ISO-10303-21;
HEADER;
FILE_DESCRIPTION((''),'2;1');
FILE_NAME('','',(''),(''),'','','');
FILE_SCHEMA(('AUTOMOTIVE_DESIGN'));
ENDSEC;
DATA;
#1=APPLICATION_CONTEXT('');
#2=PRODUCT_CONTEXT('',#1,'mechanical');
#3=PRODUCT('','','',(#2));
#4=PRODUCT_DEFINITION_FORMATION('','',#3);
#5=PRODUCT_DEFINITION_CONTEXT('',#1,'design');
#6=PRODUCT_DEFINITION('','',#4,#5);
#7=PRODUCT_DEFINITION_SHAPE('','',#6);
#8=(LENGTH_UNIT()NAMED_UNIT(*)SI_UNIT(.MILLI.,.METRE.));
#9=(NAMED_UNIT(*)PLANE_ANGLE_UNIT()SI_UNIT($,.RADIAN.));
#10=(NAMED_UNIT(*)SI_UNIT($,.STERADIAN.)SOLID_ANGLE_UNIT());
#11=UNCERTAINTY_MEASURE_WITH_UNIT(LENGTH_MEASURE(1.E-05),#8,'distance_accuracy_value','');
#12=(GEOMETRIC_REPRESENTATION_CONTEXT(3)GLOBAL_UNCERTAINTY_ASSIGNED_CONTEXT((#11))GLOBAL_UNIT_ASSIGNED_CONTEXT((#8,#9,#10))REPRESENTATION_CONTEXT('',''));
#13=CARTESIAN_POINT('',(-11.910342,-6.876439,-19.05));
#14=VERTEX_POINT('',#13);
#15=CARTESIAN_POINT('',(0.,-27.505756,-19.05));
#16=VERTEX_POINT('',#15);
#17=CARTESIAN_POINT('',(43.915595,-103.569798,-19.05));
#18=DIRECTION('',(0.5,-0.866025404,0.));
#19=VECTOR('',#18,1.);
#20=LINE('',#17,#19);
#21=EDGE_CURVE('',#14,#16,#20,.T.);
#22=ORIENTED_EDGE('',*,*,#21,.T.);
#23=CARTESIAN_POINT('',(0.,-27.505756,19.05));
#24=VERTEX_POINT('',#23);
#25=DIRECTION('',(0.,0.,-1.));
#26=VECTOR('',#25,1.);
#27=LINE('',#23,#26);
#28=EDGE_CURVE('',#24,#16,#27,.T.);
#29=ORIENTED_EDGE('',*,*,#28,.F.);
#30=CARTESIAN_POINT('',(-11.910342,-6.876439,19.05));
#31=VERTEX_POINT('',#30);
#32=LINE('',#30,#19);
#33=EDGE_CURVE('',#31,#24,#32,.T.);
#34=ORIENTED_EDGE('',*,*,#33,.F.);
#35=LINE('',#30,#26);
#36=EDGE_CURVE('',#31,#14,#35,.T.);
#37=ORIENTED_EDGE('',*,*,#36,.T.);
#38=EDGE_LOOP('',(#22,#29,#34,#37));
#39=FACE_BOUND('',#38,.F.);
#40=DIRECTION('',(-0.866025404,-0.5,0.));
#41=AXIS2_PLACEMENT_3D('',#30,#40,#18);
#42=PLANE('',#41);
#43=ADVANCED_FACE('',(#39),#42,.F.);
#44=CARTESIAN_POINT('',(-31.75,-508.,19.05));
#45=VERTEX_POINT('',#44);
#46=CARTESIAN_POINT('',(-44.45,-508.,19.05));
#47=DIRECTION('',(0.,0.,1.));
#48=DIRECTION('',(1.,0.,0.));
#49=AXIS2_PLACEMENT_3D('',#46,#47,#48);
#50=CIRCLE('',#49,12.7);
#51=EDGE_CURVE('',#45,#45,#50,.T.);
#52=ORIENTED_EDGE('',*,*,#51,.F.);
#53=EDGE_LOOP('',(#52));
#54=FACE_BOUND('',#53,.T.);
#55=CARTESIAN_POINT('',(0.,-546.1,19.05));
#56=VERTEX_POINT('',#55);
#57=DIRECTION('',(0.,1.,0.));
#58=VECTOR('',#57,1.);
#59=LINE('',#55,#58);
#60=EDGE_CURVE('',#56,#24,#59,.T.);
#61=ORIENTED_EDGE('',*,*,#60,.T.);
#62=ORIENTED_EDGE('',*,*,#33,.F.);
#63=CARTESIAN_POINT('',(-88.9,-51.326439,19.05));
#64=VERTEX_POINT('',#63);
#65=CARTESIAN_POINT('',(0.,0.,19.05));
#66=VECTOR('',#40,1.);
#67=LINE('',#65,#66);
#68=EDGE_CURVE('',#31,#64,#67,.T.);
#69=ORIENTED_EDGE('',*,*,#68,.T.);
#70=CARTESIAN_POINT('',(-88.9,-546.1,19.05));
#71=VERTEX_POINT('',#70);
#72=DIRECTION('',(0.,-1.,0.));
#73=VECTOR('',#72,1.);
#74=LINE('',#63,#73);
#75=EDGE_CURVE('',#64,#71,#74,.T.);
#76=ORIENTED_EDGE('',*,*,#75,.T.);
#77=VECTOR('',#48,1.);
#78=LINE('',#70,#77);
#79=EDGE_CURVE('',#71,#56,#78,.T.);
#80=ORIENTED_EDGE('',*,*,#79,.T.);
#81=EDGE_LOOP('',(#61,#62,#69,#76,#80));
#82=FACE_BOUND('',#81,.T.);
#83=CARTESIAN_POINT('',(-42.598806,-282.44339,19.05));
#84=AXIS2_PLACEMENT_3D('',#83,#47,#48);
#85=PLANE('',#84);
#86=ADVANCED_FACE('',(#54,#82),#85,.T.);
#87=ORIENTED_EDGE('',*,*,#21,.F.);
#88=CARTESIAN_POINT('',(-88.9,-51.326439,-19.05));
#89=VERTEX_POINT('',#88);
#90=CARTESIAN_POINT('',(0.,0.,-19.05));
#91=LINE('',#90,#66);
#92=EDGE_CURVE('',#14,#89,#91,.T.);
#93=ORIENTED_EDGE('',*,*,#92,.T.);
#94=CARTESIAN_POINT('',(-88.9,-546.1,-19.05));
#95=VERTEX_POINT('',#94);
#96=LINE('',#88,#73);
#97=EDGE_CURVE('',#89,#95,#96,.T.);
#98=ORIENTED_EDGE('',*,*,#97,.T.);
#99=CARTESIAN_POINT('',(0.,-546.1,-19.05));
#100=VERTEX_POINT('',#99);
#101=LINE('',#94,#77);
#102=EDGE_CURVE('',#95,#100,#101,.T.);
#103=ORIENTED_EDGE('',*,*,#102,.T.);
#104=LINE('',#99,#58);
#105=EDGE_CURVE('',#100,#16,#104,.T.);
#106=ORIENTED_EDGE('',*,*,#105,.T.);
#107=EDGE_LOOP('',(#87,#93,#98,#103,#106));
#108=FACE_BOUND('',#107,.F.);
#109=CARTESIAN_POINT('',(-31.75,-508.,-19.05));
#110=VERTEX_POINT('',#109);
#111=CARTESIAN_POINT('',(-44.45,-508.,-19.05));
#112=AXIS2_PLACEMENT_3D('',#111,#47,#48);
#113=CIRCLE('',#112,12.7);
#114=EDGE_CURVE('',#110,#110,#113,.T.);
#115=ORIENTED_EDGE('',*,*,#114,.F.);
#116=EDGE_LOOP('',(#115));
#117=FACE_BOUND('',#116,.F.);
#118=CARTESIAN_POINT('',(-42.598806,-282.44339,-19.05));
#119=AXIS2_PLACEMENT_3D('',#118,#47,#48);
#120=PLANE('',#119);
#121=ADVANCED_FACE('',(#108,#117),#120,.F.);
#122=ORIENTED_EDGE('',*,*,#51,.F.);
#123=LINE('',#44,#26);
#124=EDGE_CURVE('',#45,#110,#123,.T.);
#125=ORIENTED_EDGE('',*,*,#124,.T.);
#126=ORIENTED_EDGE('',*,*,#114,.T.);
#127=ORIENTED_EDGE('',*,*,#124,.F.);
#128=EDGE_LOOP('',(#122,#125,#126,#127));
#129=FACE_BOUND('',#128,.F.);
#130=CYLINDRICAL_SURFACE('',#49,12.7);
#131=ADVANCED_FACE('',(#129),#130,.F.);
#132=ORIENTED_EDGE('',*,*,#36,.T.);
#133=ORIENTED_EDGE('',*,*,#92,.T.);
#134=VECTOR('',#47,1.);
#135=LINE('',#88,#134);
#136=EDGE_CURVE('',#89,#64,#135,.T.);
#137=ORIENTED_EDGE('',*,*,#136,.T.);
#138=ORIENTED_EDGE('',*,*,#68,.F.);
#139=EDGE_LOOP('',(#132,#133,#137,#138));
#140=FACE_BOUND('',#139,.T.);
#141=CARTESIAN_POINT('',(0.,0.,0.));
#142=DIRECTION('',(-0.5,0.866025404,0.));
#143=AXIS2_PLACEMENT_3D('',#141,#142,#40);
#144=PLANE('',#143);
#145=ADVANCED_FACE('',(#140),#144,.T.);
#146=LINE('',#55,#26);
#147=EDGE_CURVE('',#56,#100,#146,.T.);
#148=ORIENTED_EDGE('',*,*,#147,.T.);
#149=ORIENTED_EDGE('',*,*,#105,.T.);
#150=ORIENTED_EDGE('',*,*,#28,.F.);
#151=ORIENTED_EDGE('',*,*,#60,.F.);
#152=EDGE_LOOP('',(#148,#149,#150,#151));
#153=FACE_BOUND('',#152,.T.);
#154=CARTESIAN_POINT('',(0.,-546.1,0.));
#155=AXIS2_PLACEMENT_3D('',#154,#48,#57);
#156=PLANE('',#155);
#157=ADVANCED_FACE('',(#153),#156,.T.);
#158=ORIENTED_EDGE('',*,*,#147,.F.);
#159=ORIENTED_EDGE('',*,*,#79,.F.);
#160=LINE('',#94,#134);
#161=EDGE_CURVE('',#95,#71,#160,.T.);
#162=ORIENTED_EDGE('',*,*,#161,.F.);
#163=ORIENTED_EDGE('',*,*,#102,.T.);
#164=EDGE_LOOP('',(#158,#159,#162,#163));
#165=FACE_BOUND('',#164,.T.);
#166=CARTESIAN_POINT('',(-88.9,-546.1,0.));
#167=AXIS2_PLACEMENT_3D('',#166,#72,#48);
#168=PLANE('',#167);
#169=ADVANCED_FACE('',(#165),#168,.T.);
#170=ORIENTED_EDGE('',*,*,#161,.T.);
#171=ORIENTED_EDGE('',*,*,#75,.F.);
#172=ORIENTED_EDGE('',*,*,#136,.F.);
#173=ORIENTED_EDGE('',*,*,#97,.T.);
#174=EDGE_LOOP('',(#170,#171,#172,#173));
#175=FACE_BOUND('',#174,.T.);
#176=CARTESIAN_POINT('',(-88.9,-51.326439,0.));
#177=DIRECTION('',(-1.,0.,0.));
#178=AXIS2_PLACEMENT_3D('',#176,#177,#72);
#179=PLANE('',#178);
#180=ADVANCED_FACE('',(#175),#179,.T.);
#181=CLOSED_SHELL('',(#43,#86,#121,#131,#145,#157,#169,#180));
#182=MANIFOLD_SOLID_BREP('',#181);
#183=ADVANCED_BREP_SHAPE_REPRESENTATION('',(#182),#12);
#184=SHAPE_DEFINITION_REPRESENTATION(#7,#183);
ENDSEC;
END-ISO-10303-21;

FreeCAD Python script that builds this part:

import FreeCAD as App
import Part
import Sketcher
Q = App.Units.Quantity

doc = App.newDocument("Part")
params = doc.addObject("Spreadsheet::Sheet", "Params")
for row, (alias, value) in enumerate([
    ("sketch1_width", "3.5 in"),
    ("sketch1_height", "21.5 in"),
    ("pad1_length", "1.5 in"),
    ("sketch3_diameter", "1 in"),
], start=1):
    params.set(f"A{row}", alias)
    params.set(f"B{row}", "=" + value)
    params.setAlias(f"B{row}", alias)

body = doc.addObject("PartDesign::Body", "Body")

# Sketch on XY plane
sketch1 = body.newObject("Sketcher::SketchObject", "Sketch")
sketch1.AttachmentSupport = (doc.getObject("XY_Plane"), [""])
sketch1.MapMode = "FlatFace"
sketch1.addGeometry(Part.LineSegment(App.Vector(0, 0, 0), App.Vector(-89, -51, 0)), False)
sketch1.addGeometry(Part.LineSegment(App.Vector(-89, -51, 0), App.Vector(-89, -546, 0)), False)
sketch1.addGeometry(Part.LineSegment(App.Vector(-89, -546, 0), App.Vector(0, -546, 0)), False)
sketch1.addGeometry(Part.LineSegment(App.Vector(0, -546, 0), App.Vector(0, 0, 0)), False)
sketch1.addConstraint(Sketcher.Constraint("Coincident", 0, 2, 1, 1))
sketch1.addConstraint(Sketcher.Constraint("Coincident", 1, 2, 2, 1))
sketch1.addConstraint(Sketcher.Constraint("Coincident", 2, 2, 3, 1))
sketch1.addConstraint(Sketcher.Constraint("Coincident", 3, 2, 0, 1))
sketch1.addConstraint(Sketcher.Constraint("Vertical", 1))
sketch1.addConstraint(Sketcher.Constraint("Horizontal", 2))
sketch1.addConstraint(Sketcher.Constraint("Vertical", 3))
sketch1.addConstraint(Sketcher.Constraint("Coincident", 3, 2, -1, 1))
sketch1.addConstraint(Sketcher.Constraint("DistanceX", 2, 1, 2, 2, Q("3.5 in")))
sketch1.addConstraint(Sketcher.Constraint("DistanceY", 3, 1, 3, 2, Q("21.5 in")))
sketch1.addConstraint(Sketcher.Constraint("Angle", 0, Q("-150 deg")))
sketch1.setExpression("Constraints[8]", "Params.sketch1_width")
sketch1.setExpression("Constraints[9]", "Params.sketch1_height")
pad1 = body.newObject("PartDesign::Pad", "Pad")
pad1.Profile = sketch1
pad1.setExpression("Length", "Params.pad1_length")
pad1.Midplane = True

# Sketch on XY plane
sketch2 = body.newObject("Sketcher::SketchObject", "Sketch001")
sketch2.AttachmentSupport = (doc.getObject("XY_Plane"), [""])
sketch2.MapMode = "FlatFace"
sketch2.AttachmentOffset = App.Placement(App.Vector(0, 0, 0.75 * 25.4), App.Rotation())
sketch2.addGeometry(Part.LineSegment(App.Vector(0, -28, 0), App.Vector(0, 0, 0)), False)
sketch2.addGeometry(Part.LineSegment(App.Vector(0, 0, 0), App.Vector(-12, -7, 0)), False)
sketch2.addGeometry(Part.LineSegment(App.Vector(-12, -7, 0), App.Vector(0, -28, 0)), False)
sketch2.addConstraint(Sketcher.Constraint("Coincident", 0, 2, 1, 1))
sketch2.addConstraint(Sketcher.Constraint("Coincident", 1, 2, 2, 1))
sketch2.addConstraint(Sketcher.Constraint("Coincident", 2, 2, 0, 1))
sketch2.addConstraint(Sketcher.Constraint("Vertical", 0))
sketch2.addConstraint(Sketcher.Constraint("Coincident", 0, 2, -1, 1))
sketch2.addConstraint(Sketcher.Constraint("Perpendicular", 1, 2))
sketch2.addConstraint(Sketcher.Constraint("Angle", 1, Q("-150 deg")))
sketch2.addConstraint(Sketcher.Constraint("DistanceY", 0, 1, 0, 2, 27.505756))
pocket1 = body.newObject("PartDesign::Pocket", "Pocket")
pocket1.Profile = sketch2
pocket1.Type = "ThroughAll"

# Sketch on XY plane
sketch3 = body.newObject("Sketcher::SketchObject", "Sketch002")
sketch3.AttachmentSupport = (doc.getObject("XY_Plane"), [""])
sketch3.MapMode = "FlatFace"
sketch3.AttachmentOffset = App.Placement(App.Vector(0, 0, 0.75 * 25.4), App.Rotation())
sketch3.addGeometry(Part.Circle(App.Vector(-44, -508, 0), App.Vector(0, 0, 1), 13), False)
sketch3.addConstraint(Sketcher.Constraint("Diameter", 0, Q("1 in")))
sketch3.addConstraint(Sketcher.Constraint("DistanceY", 0, 3, -1, 1, Q("20 in")))
sketch3.addConstraint(Sketcher.Constraint("DistanceX", 0, 3, -1, 1, Q("1.75 in")))
sketch3.setExpression("Constraints[0]", "Params.sketch3_diameter")
pocket2 = body.newObject("PartDesign::Pocket", "Pocket001")
pocket2.Profile = sketch3
pocket2.Type = "ThroughAll"

doc.recompute()
